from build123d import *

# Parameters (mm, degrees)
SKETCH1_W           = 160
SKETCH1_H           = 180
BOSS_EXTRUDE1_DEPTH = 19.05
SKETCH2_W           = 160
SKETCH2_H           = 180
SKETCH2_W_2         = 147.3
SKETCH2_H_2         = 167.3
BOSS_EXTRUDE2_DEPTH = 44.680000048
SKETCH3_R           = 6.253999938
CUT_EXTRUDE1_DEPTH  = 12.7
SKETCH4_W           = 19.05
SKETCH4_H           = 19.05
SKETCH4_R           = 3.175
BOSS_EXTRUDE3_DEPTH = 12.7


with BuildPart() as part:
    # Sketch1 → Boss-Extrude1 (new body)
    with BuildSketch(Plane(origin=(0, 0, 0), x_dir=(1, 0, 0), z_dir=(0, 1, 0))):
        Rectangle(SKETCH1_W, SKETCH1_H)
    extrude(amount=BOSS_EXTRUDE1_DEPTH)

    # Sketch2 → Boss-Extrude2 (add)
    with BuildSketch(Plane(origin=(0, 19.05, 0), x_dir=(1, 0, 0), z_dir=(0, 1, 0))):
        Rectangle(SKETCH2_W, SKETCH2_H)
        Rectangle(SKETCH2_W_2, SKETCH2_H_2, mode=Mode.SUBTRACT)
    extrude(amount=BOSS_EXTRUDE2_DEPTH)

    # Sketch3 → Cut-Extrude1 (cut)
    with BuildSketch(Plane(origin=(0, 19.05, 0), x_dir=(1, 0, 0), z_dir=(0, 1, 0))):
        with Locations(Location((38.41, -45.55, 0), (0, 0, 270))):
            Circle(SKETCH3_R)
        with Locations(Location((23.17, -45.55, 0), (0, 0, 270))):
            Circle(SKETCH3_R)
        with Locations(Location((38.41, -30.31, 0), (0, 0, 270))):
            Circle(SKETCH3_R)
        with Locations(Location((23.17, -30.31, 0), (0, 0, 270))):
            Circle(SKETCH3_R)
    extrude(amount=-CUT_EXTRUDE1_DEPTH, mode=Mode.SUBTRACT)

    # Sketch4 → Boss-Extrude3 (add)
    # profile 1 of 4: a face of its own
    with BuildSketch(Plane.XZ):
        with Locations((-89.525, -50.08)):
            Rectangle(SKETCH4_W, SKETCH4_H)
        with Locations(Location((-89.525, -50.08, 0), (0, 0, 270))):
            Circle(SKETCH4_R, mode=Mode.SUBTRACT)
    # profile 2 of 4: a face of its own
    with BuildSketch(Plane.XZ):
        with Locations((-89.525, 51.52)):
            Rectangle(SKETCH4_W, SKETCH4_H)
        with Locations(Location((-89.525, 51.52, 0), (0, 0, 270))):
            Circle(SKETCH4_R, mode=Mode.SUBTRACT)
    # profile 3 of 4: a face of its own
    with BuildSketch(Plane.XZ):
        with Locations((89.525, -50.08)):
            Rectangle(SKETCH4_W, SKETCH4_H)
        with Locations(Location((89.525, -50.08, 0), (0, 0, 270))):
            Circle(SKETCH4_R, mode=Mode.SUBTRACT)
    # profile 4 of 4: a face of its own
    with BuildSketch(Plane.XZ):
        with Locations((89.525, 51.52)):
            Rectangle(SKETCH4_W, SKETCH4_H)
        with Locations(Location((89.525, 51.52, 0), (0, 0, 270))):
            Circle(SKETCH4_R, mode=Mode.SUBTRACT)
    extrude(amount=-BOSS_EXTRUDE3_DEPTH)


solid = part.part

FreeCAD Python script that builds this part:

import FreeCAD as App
import Part
import Sketcher
Q = App.Units.Quantity

doc = App.newDocument("Part")
body = doc.addObject("PartDesign::Body", "Body")

# Sketch on XZ plane
sketch1 = body.newObject("Sketcher::SketchObject", "Sketch")
sketch1.AttachmentSupport = (doc.getObject("XZ_Plane"), [""])
sketch1.MapMode = "FlatFace"
sketch1.addGeometry(Part.LineSegment(App.Vector(-80, -90, 0), App.Vector(-80, 90, 0)), False)
sketch1.addGeometry(Part.LineSegment(App.Vector(-80, 90, 0), App.Vector(80, 90, 0)), False)
sketch1.addGeometry(Part.LineSegment(App.Vector(80, 90, 0), App.Vector(80, -90, 0)), False)
sketch1.addGeometry(Part.LineSegment(App.Vector(80, -90, 0), App.Vector(-80, -90, 0)), False)
sketch1.addConstraint(Sketcher.Constraint("Coincident", 0, 2, 1, 1))
sketch1.addConstraint(Sketcher.Constraint("Coincident", 1, 2, 2, 1))
sketch1.addConstraint(Sketcher.Constraint("Coincident", 2, 2, 3, 1))
sketch1.addConstraint(Sketcher.Constraint("Coincident", 3, 2, 0, 1))
sketch1.addConstraint(Sketcher.Constraint("Vertical", 0))
sketch1.addConstraint(Sketcher.Constraint("Horizontal", 1))
sketch1.addConstraint(Sketcher.Constraint("Vertical", 2))
sketch1.addConstraint(Sketcher.Constraint("Horizontal", 3))
sketch1.addConstraint(Sketcher.Constraint("Symmetric", 0, 2, 2, 2, -1, 1))
sketch1.addConstraint(Sketcher.Constraint("DistanceX", 1, 1, 1, 2, Q("160 mm")))
sketch1.addConstraint(Sketcher.Constraint("DistanceY", 0, 1, 0, 2, Q("180 mm")))
pad1 = body.newObject("PartDesign::Pad", "Pad")
pad1.Profile = sketch1
pad1.Length = 19.05
pad1.Reversed = True

# Sketch on XZ plane
sketch2 = body.newObject("Sketcher::SketchObject", "Sketch001")
sketch2.AttachmentSupport = (doc.getObject("XZ_Plane"), [""])
sketch2.MapMode = "FlatFace"
sketch2.AttachmentOffset = App.Placement(App.Vector(0, 0, -19.05), App.Rotation())
sketch2.addGeometry(Part.LineSegment(App.Vector(-80, -90, 0), App.Vector(-80, 90, 0)), False)
sketch2.addGeometry(Part.LineSegment(App.Vector(-80, 90, 0), App.Vector(80, 90, 0)), False)
sketch2.addGeometry(Part.LineSegment(App.Vector(80, 90, 0), App.Vector(80, -90, 0)), False)
sketch2.addGeometry(Part.LineSegment(App.Vector(80, -90, 0), App.Vector(-80, -90, 0)), False)
sketch2.addGeometry(Part.LineSegment(App.Vector(74, 84, 0), App.Vector(-74, 84, 0)), False)
sketch2.addGeometry(Part.LineSegment(App.Vector(-74, 84, 0), App.Vector(-74, -84, 0)), False)
sketch2.addGeometry(Part.LineSegment(App.Vector(-74, -84, 0), App.Vector(74, -84, 0)), False)
sketch2.addGeometry(Part.LineSegment(App.Vector(74, -84, 0), App.Vector(74, 84, 0)), False)
sketch2.addConstraint(Sketcher.Constraint("Coincident", 0, 2, 1, 1))
sketch2.addConstraint(Sketcher.Constraint("Coincident", 1, 2, 2, 1))
sketch2.addConstraint(Sketcher.Constraint("Coincident", 2, 2, 3, 1))
sketch2.addConstraint(Sketcher.Constraint("Coincident", 3, 2, 0, 1))
sketch2.addConstraint(Sketcher.Constraint("Coincident", 4, 2, 5, 1))
sketch2.addConstraint(Sketcher.Constraint("Coincident", 5, 2, 6, 1))
sketch2.addConstraint(Sketcher.Constraint("Coincident", 6, 2, 7, 1))
sketch2.addConstraint(Sketcher.Constraint("Coincident", 7, 2, 4, 1))
sketch2.addConstraint(Sketcher.Constraint("Vertical", 0))
sketch2.addConstraint(Sketcher.Constraint("Horizontal", 1))
sketch2.addConstraint(Sketcher.Constraint("Vertical", 2))
sketch2.addConstraint(Sketcher.Constraint("Horizontal", 3))
sketch2.addConstraint(Sketcher.Constraint("Horizontal", 4))
sketch2.addConstraint(Sketcher.Constraint("Vertical", 5))
sketch2.addConstraint(Sketcher.Constraint("Horizontal", 6))
sketch2.addConstraint(Sketcher.Constraint("Vertical", 7))
sketch2.addConstraint(Sketcher.Constraint("Symmetric", 0, 2, 2, 2, -1, 1))
sketch2.addConstraint(Sketcher.Constraint("Symmetric", 4, 2, 6, 2, -1, 1))
sketch2.addConstraint(Sketcher.Constraint("DistanceX", 1, 1, 1, 2, Q("160 mm")))
sketch2.addConstraint(Sketcher.Constraint("DistanceY", 0, 1, 0, 2, Q("180 mm")))
sketch2.addConstraint(Sketcher.Constraint("DistanceX", 4, 2, 4, 1, Q("147.3 mm")))
sketch2.addConstraint(Sketcher.Constraint("DistanceY", 5, 2, 5, 1, Q("167.3 mm")))
pad2 = body.newObject("PartDesign::Pad", "Pad001")
pad2.Profile = sketch2
pad2.Length = 44.68
pad2.Reversed = True

# Sketch on XZ plane
sketch3 = body.newObject("Sketcher::SketchObject", "Sketch002")
sketch3.AttachmentSupport = (doc.getObject("XZ_Plane"), [""])
sketch3.MapMode = "FlatFace"
sketch3.AttachmentOffset = App.Placement(App.Vector(0, 0, -19.05), App.Rotation())
sketch3.addGeometry(Part.Circle(App.Vector(38, 46, 0), App.Vector(0, 0, 1), 6), False)
sketch3.addGeometry(Part.Circle(App.Vector(23, 46, 0), App.Vector(0, 0, 1), 6), False)
sketch3.addGeometry(Part.Circle(App.Vector(38, 30, 0), App.Vector(0, 0, 1), 6), False)
sketch3.addGeometry(Part.Circle(App.Vector(23, 30, 0), App.Vector(0, 0, 1), 6), False)
sketch3.addConstraint(Sketcher.Constraint("Equal", 0, 1))
sketch3.addConstraint(Sketcher.Constraint("Equal", 1, 2))
sketch3.addConstraint(Sketcher.Constraint("Equal", 2, 3))
sketch3.addConstraint(Sketcher.Constraint("Horizontal", 0, 3, 1, 3))
sketch3.addConstraint(Sketcher.Constraint("Horizontal", 2, 3, 3, 3))
sketch3.addConstraint(Sketcher.Constraint("Vertical", 0, 3, 2, 3))
sketch3.addConstraint(Sketcher.Constraint("Vertical", 1, 3, 3, 3))
sketch3.addConstraint(Sketcher.Constraint("Diameter", 0, Q("12.508 mm")))
sketch3.addConstraint(Sketcher.Constraint("DistanceX", -1, 1, 0, 3, Q("38.41 mm")))
sketch3.addConstraint(Sketcher.Constraint("DistanceY", -1, 1, 0, 3, Q("45.55 mm")))
sketch3.addConstraint(Sketcher.Constraint("DistanceX", -1, 1, 1, 3, Q("23.17 mm")))
sketch3.addConstraint(Sketcher.Constraint("DistanceY", -1, 1, 2, 3, Q("30.31 mm")))
pocket1 = body.newObject("PartDesign::Pocket", "Pocket")
pocket1.Profile = sketch3
pocket1.Length = 12.7
pocket1.Reversed = True

# Sketch on XZ plane
sketch4 = body.newObject("Sketcher::SketchObject", "Sketch003")
sketch4.AttachmentSupport = (doc.getObject("XZ_Plane"), [""])
sketch4.MapMode = "FlatFace"
sketch4.addGeometry(Part.LineSegment(App.Vector(-99, -40.6, 0), App.Vector(-99, -59.6, 0)), False)
sketch4.addGeometry(Part.LineSegment(App.Vector(-99, -59.6, 0), App.Vector(-80, -59.6, 0)), False)
sketch4.addGeometry(Part.LineSegment(App.Vector(-80, -59.6, 0), App.Vector(-80, -40.6, 0)), False)
sketch4.addGeometry(Part.LineSegment(App.Vector(-80, -40.6, 0), App.Vector(-99, -40.6, 0)), False)
sketch4.addGeometry(Part.Circle(App.Vector(-89.5, -50.1, 0), App.Vector(0, 0, 1), 3.2), False)
sketch4.addGeometry(Part.LineSegment(App.Vector(-99, 61, 0), App.Vector(-99, 42, 0)), False)
sketch4.addGeometry(Part.LineSegment(App.Vector(-99, 42, 0), App.Vector(-80, 42, 0)), False)
sketch4.addGeometry(Part.LineSegment(App.Vector(-80, 42, 0), App.Vector(-80, 61, 0)), False)
sketch4.addGeometry(Part.LineSegment(App.Vector(-80, 61, 0), App.Vector(-99, 61, 0)), False)
sketch4.addGeometry(Part.Circle(App.Vector(-89.5, 51.5, 0), App.Vector(0, 0, 1), 3.2), False)
sketch4.addGeometry(Part.LineSegment(App.Vector(80, -40.6, 0), App.Vector(80, -59.6, 0)), False)
sketch4.addGeometry(Part.LineSegment(App.Vector(80, -59.6, 0), App.Vector(99, -59.6, 0)), False)
sketch4.addGeometry(Part.LineSegment(App.Vector(99, -59.6, 0), App.Vector(99, -40.6, 0)), False)
sketch4.addGeometry(Part.LineSegment(App.Vector(99, -40.6, 0), App.Vector(80, -40.6, 0)), False)
sketch4.addGeometry(Part.Circle(App.Vector(89.5, -50.1, 0), App.Vector(0, 0, 1), 3.2), False)
sketch4.addGeometry(Part.LineSegment(App.Vector(80, 61, 0), App.Vector(80, 42, 0)), False)
sketch4.addGeometry(Part.LineSegment(App.Vector(80, 42, 0), App.Vector(99, 42, 0)), False)
sketch4.addGeometry(Part.LineSegment(App.Vector(99, 42, 0), App.Vector(99, 61, 0)), False)
sketch4.addGeometry(Part.LineSegment(App.Vector(99, 61, 0), App.Vector(80, 61, 0)), False)
sketch4.addGeometry(Part.Circle(App.Vector(89.5, 51.5, 0), App.Vector(0, 0, 1), 3.2), False)
sketch4.addConstraint(Sketcher.Constraint("Coincident", 0, 2, 1, 1))
sketch4.addConstraint(Sketcher.Constraint("Coincident", 1, 2, 2, 1))
sketch4.addConstraint(Sketcher.Constraint("Coincident", 2, 2, 3, 1))
sketch4.addConstraint(Sketcher.Constraint("Coincident", 3, 2, 0, 1))
sketch4.addConstraint(Sketcher.Constraint("Coincident", 5, 2, 6, 1))
sketch4.addConstraint(Sketcher.Constraint("Coincident", 6, 2, 7, 1))
sketch4.addConstraint(Sketcher.Constraint("Coincident", 7, 2, 8, 1))
sketch4.addConstraint(Sketcher.Constraint("Coincident", 8, 2, 5, 1))
sketch4.addConstraint(Sketcher.Constraint("Coincident", 10, 2, 11, 1))
sketch4.addConstraint(Sketcher.Constraint("Coincident", 11, 2, 12, 1))
sketch4.addConstraint(Sketcher.Constraint("Coincident", 12, 2, 13, 1))
sketch4.addConstraint(Sketcher.Constraint("Coincident", 13, 2, 10, 1))
sketch4.addConstraint(Sketcher.Constraint("Coincident", 15, 2, 16, 1))
sketch4.addConstraint(Sketcher.Constraint("Coincident", 16, 2, 17, 1))
sketch4.addConstraint(Sketcher.Constraint("Coincident", 17, 2, 18, 1))
sketch4.addConstraint(Sketcher.Constraint("Coincident", 18, 2, 15, 1))
sketch4.addConstraint(Sketcher.Constraint("Vertical", 0))
sketch4.addConstraint(Sketcher.Constraint("Horizontal", 1))
sketch4.addConstraint(Sketcher.Constraint("Vertical", 2))
sketch4.addConstraint(Sketcher.Constraint("Horizontal", 3))
sketch4.addConstraint(Sketcher.Constraint("Vertical", 5))
sketch4.addConstraint(Sketcher.Constraint("Horizontal", 6))
sketch4.addConstraint(Sketcher.Constraint("Vertical", 7))
sketch4.addConstraint(Sketcher.Constraint("Horizontal", 8))
sketch4.addConstraint(Sketcher.Constraint("Vertical", 10))
sketch4.addConstraint(Sketcher.Constraint("Horizontal", 11))
sketch4.addConstraint(Sketcher.Constraint("Vertical", 12))
sketch4.addConstraint(Sketcher.Constraint("Horizontal", 13))
sketch4.addConstraint(Sketcher.Constraint("Vertical", 15))
sketch4.addConstraint(Sketcher.Constraint("Horizontal", 16))
sketch4.addConstraint(Sketcher.Constraint("Vertical", 17))
sketch4.addConstraint(Sketcher.Constraint("Horizontal", 18))
sketch4.addConstraint(Sketcher.Constraint("Equal", 4, 9))
sketch4.addConstraint(Sketcher.Constraint("Equal", 9, 14))
sketch4.addConstraint(Sketcher.Constraint("Equal", 14, 19))
sketch4.addConstraint(Sketcher.Constraint("Symmetric", 4, 3, 14, 3, -2))
sketch4.addConstraint(Sketcher.Constraint("Symmetric", 9, 3, 19, 3, -2))
sketch4.addConstraint(Sketcher.Constraint("Symmetric", 1, 2, 10, 2, -2))
sketch4.addConstraint(Sketcher.Constraint("Symmetric", 3, 2, 12, 2, -2))
sketch4.addConstraint(Sketcher.Constraint("Symmetric", 6, 2, 15, 2, -2))
sketch4.addConstraint(Sketcher.Constraint("Symmetric", 8, 2, 17, 2, -2))
sketch4.addConstraint(Sketcher.Constraint("Vertical", 4, 3, 9, 3))
sketch4.addConstraint(Sketcher.Constraint("Vertical", 3, 2, 5, 2))
sketch4.addConstraint(Sketcher.Constraint("Vertical", 2, 2, 6, 2))
sketch4.addConstraint(Sketcher.Constraint("Equal", 18, 0))
sketch4.addConstraint(Sketcher.Constraint("Equal", 2, 5))
sketch4.addConstraint(Sketcher.Constraint("Diameter", 4, Q("6.35 mm")))
sketch4.addConstraint(Sketcher.Constraint("DistanceX", 1, 2, -1, 1, Q("80 mm")))
sketch4.addConstraint(Sketcher.Constraint("DistanceX", 1, 1, 1, 2, Q("19.05 mm")))
sketch4.addConstraint(Sketcher.Constraint("DistanceY", 4, 3, 9, 3, Q("101.6 mm")))
sketch4.addConstraint(Sketcher.Constraint("DistanceY", 0, 2, 5, 2, Q("101.6 mm")))
sketch4.addConstraint(Sketcher.Constraint("DistanceY", 4, 3, -1, 1, Q("50.08 mm")))
sketch4.addConstraint(Sketcher.Constraint("DistanceX", 4, 3, 14, 3, Q("179.05 mm")))
sketch4.addConstraint(Sketcher.Constraint("DistanceY", 0, 2, -1, 1, Q("59.605 mm")))
pad3 = body.newObject("PartDesign::Pad", "Pad002")
pad3.Profile = sketch4
pad3.Length = 12.7
pad3.Reversed = True

doc.recompute()
